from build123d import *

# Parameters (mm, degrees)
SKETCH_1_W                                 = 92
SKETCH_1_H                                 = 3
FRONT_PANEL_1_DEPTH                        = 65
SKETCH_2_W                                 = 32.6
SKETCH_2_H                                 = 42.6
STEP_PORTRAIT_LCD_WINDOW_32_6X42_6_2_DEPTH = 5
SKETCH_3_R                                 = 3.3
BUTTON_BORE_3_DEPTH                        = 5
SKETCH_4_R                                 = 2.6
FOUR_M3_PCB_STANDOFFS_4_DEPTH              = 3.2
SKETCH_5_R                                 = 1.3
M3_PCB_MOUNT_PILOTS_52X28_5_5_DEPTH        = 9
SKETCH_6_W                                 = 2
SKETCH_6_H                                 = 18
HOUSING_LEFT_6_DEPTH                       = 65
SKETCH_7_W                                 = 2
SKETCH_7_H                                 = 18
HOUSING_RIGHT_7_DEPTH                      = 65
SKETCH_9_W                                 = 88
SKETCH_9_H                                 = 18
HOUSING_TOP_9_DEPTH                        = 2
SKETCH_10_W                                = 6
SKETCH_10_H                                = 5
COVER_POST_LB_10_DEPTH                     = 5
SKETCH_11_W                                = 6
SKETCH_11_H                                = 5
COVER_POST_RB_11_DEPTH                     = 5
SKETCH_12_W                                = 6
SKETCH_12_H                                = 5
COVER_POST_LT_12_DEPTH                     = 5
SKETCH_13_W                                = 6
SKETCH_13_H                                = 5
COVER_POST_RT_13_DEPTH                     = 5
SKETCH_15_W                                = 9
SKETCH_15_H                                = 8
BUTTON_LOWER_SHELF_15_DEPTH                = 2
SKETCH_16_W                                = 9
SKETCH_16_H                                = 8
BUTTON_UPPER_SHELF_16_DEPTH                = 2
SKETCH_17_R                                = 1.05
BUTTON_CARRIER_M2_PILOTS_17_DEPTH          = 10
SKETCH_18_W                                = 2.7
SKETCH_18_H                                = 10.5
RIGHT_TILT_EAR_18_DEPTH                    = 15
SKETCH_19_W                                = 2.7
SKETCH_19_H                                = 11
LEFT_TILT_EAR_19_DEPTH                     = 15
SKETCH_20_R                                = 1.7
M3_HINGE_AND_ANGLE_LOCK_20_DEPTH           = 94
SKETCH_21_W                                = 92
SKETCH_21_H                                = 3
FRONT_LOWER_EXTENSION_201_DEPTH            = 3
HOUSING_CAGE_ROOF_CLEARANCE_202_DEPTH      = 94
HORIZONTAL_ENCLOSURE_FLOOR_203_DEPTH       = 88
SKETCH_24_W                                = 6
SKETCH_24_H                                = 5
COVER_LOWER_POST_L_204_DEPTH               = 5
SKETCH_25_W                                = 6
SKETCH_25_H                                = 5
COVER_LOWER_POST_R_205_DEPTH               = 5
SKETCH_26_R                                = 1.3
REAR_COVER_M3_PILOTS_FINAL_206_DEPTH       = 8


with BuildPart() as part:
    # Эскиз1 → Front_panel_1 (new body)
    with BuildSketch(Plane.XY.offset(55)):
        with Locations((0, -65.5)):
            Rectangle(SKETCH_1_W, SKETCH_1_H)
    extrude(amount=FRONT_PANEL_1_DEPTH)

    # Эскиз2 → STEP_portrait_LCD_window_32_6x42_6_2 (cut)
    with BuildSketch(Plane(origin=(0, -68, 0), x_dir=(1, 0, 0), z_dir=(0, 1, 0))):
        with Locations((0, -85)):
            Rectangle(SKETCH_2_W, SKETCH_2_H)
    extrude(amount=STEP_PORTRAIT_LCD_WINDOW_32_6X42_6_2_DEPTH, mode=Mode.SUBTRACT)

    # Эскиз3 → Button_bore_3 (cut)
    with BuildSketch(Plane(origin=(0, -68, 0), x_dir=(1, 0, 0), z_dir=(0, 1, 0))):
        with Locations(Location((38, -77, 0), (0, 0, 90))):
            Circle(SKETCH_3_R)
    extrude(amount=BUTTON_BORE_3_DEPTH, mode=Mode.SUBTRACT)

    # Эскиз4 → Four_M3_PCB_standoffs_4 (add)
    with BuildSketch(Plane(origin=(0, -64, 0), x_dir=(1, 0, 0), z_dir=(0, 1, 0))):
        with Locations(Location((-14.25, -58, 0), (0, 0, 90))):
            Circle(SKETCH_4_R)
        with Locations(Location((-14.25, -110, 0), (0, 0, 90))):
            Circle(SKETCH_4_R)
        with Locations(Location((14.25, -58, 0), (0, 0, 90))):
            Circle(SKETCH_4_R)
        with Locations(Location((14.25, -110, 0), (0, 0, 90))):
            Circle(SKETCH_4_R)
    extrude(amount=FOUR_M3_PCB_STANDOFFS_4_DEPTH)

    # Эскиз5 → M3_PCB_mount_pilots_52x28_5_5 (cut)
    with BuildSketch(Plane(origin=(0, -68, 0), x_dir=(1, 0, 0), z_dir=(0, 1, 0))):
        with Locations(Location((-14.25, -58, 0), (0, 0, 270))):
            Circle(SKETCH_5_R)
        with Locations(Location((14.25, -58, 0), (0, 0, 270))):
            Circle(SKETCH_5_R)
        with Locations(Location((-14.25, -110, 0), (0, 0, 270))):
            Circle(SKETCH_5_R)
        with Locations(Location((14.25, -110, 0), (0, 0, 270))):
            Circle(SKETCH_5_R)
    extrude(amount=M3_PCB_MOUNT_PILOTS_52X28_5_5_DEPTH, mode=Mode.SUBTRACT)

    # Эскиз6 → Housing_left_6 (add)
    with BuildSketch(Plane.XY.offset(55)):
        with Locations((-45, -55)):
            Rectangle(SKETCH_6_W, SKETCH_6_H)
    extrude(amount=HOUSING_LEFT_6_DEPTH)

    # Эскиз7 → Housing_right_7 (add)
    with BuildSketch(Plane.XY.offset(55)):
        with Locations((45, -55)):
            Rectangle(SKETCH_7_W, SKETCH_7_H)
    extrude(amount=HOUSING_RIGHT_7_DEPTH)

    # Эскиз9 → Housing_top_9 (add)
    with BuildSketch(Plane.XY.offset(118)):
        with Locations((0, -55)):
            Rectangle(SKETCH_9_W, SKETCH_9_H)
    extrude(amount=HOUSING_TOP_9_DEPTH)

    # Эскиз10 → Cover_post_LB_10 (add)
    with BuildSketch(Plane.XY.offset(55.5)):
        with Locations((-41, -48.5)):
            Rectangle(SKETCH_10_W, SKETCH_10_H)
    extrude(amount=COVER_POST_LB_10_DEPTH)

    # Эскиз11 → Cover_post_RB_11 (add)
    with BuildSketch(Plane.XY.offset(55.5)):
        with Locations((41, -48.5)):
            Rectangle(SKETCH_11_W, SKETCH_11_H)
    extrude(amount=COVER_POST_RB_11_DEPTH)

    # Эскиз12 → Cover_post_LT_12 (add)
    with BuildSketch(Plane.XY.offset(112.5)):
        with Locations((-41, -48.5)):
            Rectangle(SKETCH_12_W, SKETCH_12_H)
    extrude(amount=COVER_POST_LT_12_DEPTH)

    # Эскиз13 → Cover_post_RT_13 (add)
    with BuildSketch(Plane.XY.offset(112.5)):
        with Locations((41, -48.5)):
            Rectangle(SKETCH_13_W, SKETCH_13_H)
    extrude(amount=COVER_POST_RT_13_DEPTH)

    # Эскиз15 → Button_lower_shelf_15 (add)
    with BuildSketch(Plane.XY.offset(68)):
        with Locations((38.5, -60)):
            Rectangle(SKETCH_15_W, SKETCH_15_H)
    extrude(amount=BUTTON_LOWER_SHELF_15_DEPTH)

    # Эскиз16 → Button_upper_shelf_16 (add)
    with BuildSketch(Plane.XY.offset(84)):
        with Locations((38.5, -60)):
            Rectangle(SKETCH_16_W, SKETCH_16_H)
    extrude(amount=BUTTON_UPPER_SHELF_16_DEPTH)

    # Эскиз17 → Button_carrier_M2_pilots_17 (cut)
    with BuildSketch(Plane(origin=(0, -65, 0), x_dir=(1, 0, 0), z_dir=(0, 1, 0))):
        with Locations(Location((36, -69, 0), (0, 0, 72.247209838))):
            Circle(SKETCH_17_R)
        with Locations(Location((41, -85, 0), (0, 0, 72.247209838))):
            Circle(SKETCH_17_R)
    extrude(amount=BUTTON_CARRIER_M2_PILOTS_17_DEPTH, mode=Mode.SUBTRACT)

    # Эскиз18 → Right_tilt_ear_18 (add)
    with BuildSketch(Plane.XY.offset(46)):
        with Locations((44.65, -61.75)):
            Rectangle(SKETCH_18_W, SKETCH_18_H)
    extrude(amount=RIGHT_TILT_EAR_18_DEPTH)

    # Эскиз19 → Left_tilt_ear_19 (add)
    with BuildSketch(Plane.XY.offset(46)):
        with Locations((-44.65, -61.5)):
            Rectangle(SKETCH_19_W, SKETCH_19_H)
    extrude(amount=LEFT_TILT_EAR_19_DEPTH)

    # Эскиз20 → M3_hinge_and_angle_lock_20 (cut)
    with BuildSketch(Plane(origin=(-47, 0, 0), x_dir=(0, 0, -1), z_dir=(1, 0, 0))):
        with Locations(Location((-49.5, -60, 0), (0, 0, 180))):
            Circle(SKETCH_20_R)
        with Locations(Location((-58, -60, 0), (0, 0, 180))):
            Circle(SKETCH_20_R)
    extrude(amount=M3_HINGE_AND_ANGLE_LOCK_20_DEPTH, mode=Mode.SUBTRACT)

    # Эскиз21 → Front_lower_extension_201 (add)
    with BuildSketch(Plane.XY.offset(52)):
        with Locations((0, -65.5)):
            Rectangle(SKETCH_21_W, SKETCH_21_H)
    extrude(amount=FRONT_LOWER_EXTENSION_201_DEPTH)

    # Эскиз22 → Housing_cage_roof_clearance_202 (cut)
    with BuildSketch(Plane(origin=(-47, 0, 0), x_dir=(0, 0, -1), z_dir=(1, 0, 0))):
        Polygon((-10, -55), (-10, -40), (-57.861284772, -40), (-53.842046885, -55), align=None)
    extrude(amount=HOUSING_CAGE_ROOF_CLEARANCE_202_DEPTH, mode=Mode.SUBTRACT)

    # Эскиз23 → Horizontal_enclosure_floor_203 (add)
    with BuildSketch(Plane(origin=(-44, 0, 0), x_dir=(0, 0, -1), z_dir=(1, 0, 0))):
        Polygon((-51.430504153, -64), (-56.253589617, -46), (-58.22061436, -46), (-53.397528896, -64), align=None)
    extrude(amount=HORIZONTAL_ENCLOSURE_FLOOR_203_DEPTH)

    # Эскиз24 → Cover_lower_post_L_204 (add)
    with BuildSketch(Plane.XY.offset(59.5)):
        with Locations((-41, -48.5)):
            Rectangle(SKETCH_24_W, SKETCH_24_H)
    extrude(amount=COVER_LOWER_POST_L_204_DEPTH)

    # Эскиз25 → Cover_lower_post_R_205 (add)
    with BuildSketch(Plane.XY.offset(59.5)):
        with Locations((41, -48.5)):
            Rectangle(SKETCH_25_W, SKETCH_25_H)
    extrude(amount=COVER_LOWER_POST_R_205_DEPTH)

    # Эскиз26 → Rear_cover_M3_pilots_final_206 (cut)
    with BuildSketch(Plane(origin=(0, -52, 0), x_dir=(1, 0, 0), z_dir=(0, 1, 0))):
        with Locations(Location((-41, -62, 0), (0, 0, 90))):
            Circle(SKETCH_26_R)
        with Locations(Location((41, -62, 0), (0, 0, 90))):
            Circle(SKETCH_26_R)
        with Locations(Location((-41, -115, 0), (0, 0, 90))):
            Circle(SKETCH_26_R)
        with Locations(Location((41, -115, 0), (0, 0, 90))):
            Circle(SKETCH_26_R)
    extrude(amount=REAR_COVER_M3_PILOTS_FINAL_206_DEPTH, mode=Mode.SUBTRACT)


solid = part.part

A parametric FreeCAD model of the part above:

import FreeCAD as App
import Part
import Sketcher

V = App.Vector
Q = App.Units.Quantity


def add_polygon(sketch, points):
    """Adds a closed chain of lines whose ends are joined by coincident constraints."""
    first, n = sketch.GeometryCount, len(points)
    for a, b in zip(points, points[1:] + points[:1]):
        sketch.addGeometry(Part.LineSegment(App.Vector(*a, 0), App.Vector(*b, 0)), False)
    for i in range(n):
        sketch.addConstraint(Sketcher.Constraint("Coincident", first + i, 2, first + (i + 1) % n, 1))

doc = App.newDocument("Part")
params = doc.addObject("Spreadsheet::Sheet", "Params")
for row, (alias, value) in enumerate([
    ("sketch1_width", "92 mm"),
    ("sketch1_height", "3 mm"),
    ("pad1_length", "65 mm"),
    ("sketch2_width", "32.6 mm"),
    ("sketch2_height", "42.6 mm"),
    ("pocket1_length", "5 mm"),
    ("sketch3_diameter", "6.6 mm"),
    ("pocket2_length", "5 mm"),
    ("sketch4_diameter", "5.2 mm"),
    ("pad2_length", "3.2 mm"),
    ("sketch5_diameter", "2.6 mm"),
    ("pocket3_length", "9 mm"),
    ("sketch6_width", "2 mm"),
    ("sketch6_height", "18 mm"),
    ("pad3_length", "65 mm"),
    ("sketch7_width", "2 mm"),
    ("sketch7_height", "18 mm"),
    ("pad4_length", "65 mm"),
    ("sketch8_width", "88 mm"),
    ("sketch8_height", "18 mm"),
    ("pad5_length", "2 mm"),
    ("sketch9_width", "6 mm"),
    ("sketch9_height", "5 mm"),
    ("pad6_length", "5 mm"),
    ("sketch10_width", "6 mm"),
    ("sketch10_height", "5 mm"),
    ("pad7_length", "5 mm"),
    ("sketch11_width", "6 mm"),
    ("sketch11_height", "5 mm"),
    ("pad8_length", "5 mm"),
    ("sketch12_width", "6 mm"),
    ("sketch12_height", "5 mm"),
    ("pad9_length", "5 mm"),
    ("sketch13_width", "9 mm"),
    ("sketch13_height", "8 mm"),
    ("pad10_length", "2 mm"),
    ("sketch14_width", "9 mm"),
    ("sketch14_height", "8 mm"),
    ("pad11_length", "2 mm"),
    ("sketch15_diameter", "2.1 mm"),
    ("pocket4_length", "10 mm"),
    ("sketch16_width", "2.7 mm"),
    ("sketch16_height", "10.5 mm"),
    ("pad12_length", "15 mm"),
    ("sketch17_height", "11 mm"),
    ("sketch17_width", "2.7 mm"),
    ("pad13_length", "15 mm"),
    ("sketch18_diameter", "3.4 mm"),
    ("pocket5_length", "94 mm"),
    ("sketch19_width", "92 mm"),
    ("sketch19_height", "3 mm"),
    ("pad14_length", "3 mm"),
    ("sketch20_width", "15 mm"),
    ("pocket6_length", "94 mm"),
    ("pad15_length", "88 mm"),
    ("sketch22_width", "6 mm"),
    ("sketch22_height", "5 mm"),
    ("pad16_length", "5 mm"),
    ("sketch23_width", "6 mm"),
    ("sketch23_height", "5 mm"),
    ("pad17_length", "5 mm"),
    ("sketch24_diameter", "2.6 mm"),
    ("pocket7_length", "8 mm"),
], start=1):
    params.set(f"A{row}", alias)
    params.set(f"B{row}", "=" + value)
    params.setAlias(f"B{row}", alias)

body = doc.addObject("PartDesign::Body", "Body")

# Sketch on XY plane
sketch1 = body.newObject("Sketcher::SketchObject", "Sketch")
sketch1.AttachmentSupport = (doc.getObject("XY_Plane"), [""])
sketch1.MapMode = "FlatFace"
sketch1.AttachmentOffset = App.Placement(V(0, 0, 55), App.Rotation())
add_polygon(sketch1, [(-46, -64), (-46, -67), (46, -67), (46, -64)])  # lines 0-3
sketch1.addConstraint(Sketcher.Constraint("Vertical", 0))
sketch1.addConstraint(Sketcher.Constraint("Horizontal", 1))
sketch1.addConstraint(Sketcher.Constraint("Vertical", 2))
sketch1.addConstraint(Sketcher.Constraint("Horizontal", 3))
sketch1.addConstraint(Sketcher.Constraint("DistanceX", 1, 1, 1, 2, Q("92 mm")))
sketch1.addConstraint(Sketcher.Constraint("DistanceY", 0, 2, 0, 1, Q("3 mm")))
sketch1.addConstraint(Sketcher.Constraint("DistanceX", 0, 2, -1, 1, Q("46 mm")))
sketch1.addConstraint(Sketcher.Constraint("DistanceY", 0, 2, -1, 1, Q("67 mm")))
sketch1.setExpression("Constraints[8]", "Params.sketch1_width")
sketch1.setExpression("Constraints[9]", "Params.sketch1_height")
pad1 = body.newObject("PartDesign::Pad", "Pad")
pad1.Profile = sketch1
pad1.setExpression("Length", "Params.pad1_length")

# Sketch on XZ plane
sketch2 = body.newObject("Sketcher::SketchObject", "Sketch001")
sketch2.AttachmentSupport = (doc.getObject("XZ_Plane"), [""])
sketch2.MapMode = "FlatFace"
sketch2.AttachmentOffset = App.Placement(V(0, 0, 68), App.Rotation())
add_polygon(sketch2, [(-16, 64), (-16, 106), (16, 106), (16, 64)])  # lines 0-3
sketch2.addConstraint(Sketcher.Constraint("Vertical", 0))
sketch2.addConstraint(Sketcher.Constraint("Horizontal", 1))
sketch2.addConstraint(Sketcher.Constraint("Vertical", 2))
sketch2.addConstraint(Sketcher.Constraint("Horizontal", 3))
sketch2.addConstraint(Sketcher.Constraint("DistanceX", 1, 1, 1, 2, Q("32.6 mm")))
sketch2.addConstraint(Sketcher.Constraint("DistanceY", 0, 1, 0, 2, Q("42.6 mm")))
sketch2.addConstraint(Sketcher.Constraint("DistanceX", 0, 2, -1, 1, Q("16.3 mm")))
sketch2.addConstraint(Sketcher.Constraint("DistanceY", -1, 1, 0, 2, Q("106.3 mm")))
sketch2.setExpression("Constraints[8]", "Params.sketch2_width")
sketch2.setExpression("Constraints[9]", "Params.sketch2_height")
pocket1 = body.newObject("PartDesign::Pocket", "Pocket")
pocket1.Profile = sketch2
pocket1.setExpression("Length", "Params.pocket1_length")

# Sketch on XZ plane
sketch3 = body.newObject("Sketcher::SketchObject", "Sketch002")
sketch3.AttachmentSupport = (doc.getObject("XZ_Plane"), [""])
sketch3.MapMode = "FlatFace"
sketch3.AttachmentOffset = App.Placement(V(0, 0, 68), App.Rotation())
sketch3.addGeometry(Part.Circle(V(38, 77, 0), V(0, 0, 1), 3.3), False)
sketch3.addConstraint(Sketcher.Constraint("Diameter", 0, Q("6.6 mm")))
sketch3.addConstraint(Sketcher.Constraint("DistanceX", -1, 1, 0, 3, Q("38 mm")))
sketch3.addConstraint(Sketcher.Constraint("DistanceY", -1, 1, 0, 3, Q("77 mm")))
sketch3.setExpression("Constraints[0]", "Params.sketch3_diameter")
pocket2 = body.newObject("PartDesign::Pocket", "Pocket001")
pocket2.Profile = sketch3
pocket2.setExpression("Length", "Params.pocket2_length")

# Sketch on XZ plane
sketch4 = body.newObject("Sketcher::SketchObject", "Sketch003")
sketch4.AttachmentSupport = (doc.getObject("XZ_Plane"), [""])
sketch4.MapMode = "FlatFace"
sketch4.AttachmentOffset = App.Placement(V(0, 0, 64), App.Rotation())
sketch4.addGeometry(Part.Circle(V(-14.2, 58, 0), V(0, 0, 1), 2.6), False)
sketch4.addGeometry(Part.Circle(V(-14.2, 110, 0), V(0, 0, 1), 2.6), False)
sketch4.addGeometry(Part.Circle(V(14.2, 58, 0), V(0, 0, 1), 2.6), False)
sketch4.addGeometry(Part.Circle(V(14.2, 110, 0), V(0, 0, 1), 2.6), False)
sketch4.addConstraint(Sketcher.Constraint("Equal", 0, 1))
sketch4.addConstraint(Sketcher.Constraint("Equal", 1, 2))
sketch4.addConstraint(Sketcher.Constraint("Equal", 2, 3))
sketch4.addConstraint(Sketcher.Constraint("Symmetric", 0, 3, 2, 3, -2))
sketch4.addConstraint(Sketcher.Constraint("Symmetric", 1, 3, 3, 3, -2))
sketch4.addConstraint(Sketcher.Constraint("Vertical", 0, 3, 1, 3))
sketch4.addConstraint(Sketcher.Constraint("Diameter", 0, Q("5.2 mm")))
sketch4.addConstraint(Sketcher.Constraint("DistanceY", -1, 1, 0, 3, Q("58 mm")))
sketch4.addConstraint(Sketcher.Constraint("DistanceY", -1, 1, 1, 3, Q("110 mm")))
sketch4.addConstraint(Sketcher.Constraint("DistanceX", 0, 3, 2, 3, Q("28.5 mm")))
sketch4.setExpression("Constraints[6]", "Params.sketch4_diameter")
pad2 = body.newObject("PartDesign::Pad", "Pad001")
pad2.Profile = sketch4
pad2.setExpression("Length", "Params.pad2_length")
pad2.Reversed = True

# Sketch on XZ plane
sketch5 = body.newObject("Sketcher::SketchObject", "Sketch004")
sketch5.AttachmentSupport = (doc.getObject("XZ_Plane"), [""])
sketch5.MapMode = "FlatFace"
sketch5.AttachmentOffset = App.Placement(V(0, 0, 68), App.Rotation())
sketch5.addGeometry(Part.Circle(V(-14.2, 58, 0), V(0, 0, 1), 1.3), False)
sketch5.addGeometry(Part.Circle(V(14.2, 58, 0), V(0, 0, 1), 1.3), False)
sketch5.addGeometry(Part.Circle(V(-14.2, 110, 0), V(0, 0, 1), 1.3), False)
sketch5.addGeometry(Part.Circle(V(14.2, 110, 0), V(0, 0, 1), 1.3), False)
sketch5.addConstraint(Sketcher.Constraint("Equal", 0, 1))
sketch5.addConstraint(Sketcher.Constraint("Equal", 1, 2))
sketch5.addConstraint(Sketcher.Constraint("Equal", 2, 3))
sketch5.addConstraint(Sketcher.Constraint("Symmetric", 0, 3, 1, 3, -2))
sketch5.addConstraint(Sketcher.Constraint("Symmetric", 2, 3, 3, 3, -2))
sketch5.addConstraint(Sketcher.Constraint("Vertical", 0, 3, 2, 3))
sketch5.addConstraint(Sketcher.Constraint("Diameter", 0, Q("2.6 mm")))
sketch5.addConstraint(Sketcher.Constraint("DistanceY", -1, 1, 0, 3, Q("58 mm")))
sketch5.addConstraint(Sketcher.Constraint("DistanceY", -1, 1, 2, 3, Q("110 mm")))
sketch5.addConstraint(Sketcher.Constraint("DistanceX", 0, 3, 1, 3, Q("28.5 mm")))
sketch5.setExpression("Constraints[6]", "Params.sketch5_diameter")
pocket3 = body.newObject("PartDesign::Pocket", "Pocket002")
pocket3.Profile = sketch5
pocket3.setExpression("Length", "Params.pocket3_length")

# Sketch on XY plane
sketch6 = body.newObject("Sketcher::SketchObject", "Sketch005")
sketch6.AttachmentSupport = (doc.getObject("XY_Plane"), [""])
sketch6.MapMode = "FlatFace"
sketch6.AttachmentOffset = App.Placement(V(0, 0, 55), App.Rotation())
add_polygon(sketch6, [(-46, -46), (-46, -64), (-44, -64), (-44, -46)])  # lines 0-3
sketch6.addConstraint(Sketcher.Constraint("Vertical", 0))
sketch6.addConstraint(Sketcher.Constraint("Horizontal", 1))
sketch6.addConstraint(Sketcher.Constraint("Vertical", 2))
sketch6.addConstraint(Sketcher.Constraint("Horizontal", 3))
sketch6.addConstraint(Sketcher.Constraint("DistanceX", 1, 1, 1, 2, Q("2 mm")))
sketch6.addConstraint(Sketcher.Constraint("DistanceY", 0, 2, 0, 1, Q("18 mm")))
sketch6.addConstraint(Sketcher.Constraint("DistanceX", 0, 2, -1, 1, Q("46 mm")))
sketch6.addConstraint(Sketcher.Constraint("DistanceY", 0, 2, -1, 1, Q("64 mm")))
sketch6.setExpression("Constraints[8]", "Params.sketch6_width")
sketch6.setExpression("Constraints[9]", "Params.sketch6_height")
pad3 = body.newObject("PartDesign::Pad", "Pad002")
pad3.Profile = sketch6
pad3.setExpression("Length", "Params.pad3_length")

# Sketch on XY plane
sketch7 = body.newObject("Sketcher::SketchObject", "Sketch006")
sketch7.AttachmentSupport = (doc.getObject("XY_Plane"), [""])
sketch7.MapMode = "FlatFace"
sketch7.AttachmentOffset = App.Placement(V(0, 0, 55), App.Rotation())
add_polygon(sketch7, [(44, -46), (44, -64), (46, -64), (46, -46)])  # lines 0-3
sketch7.addConstraint(Sketcher.Constraint("Vertical", 0))
sketch7.addConstraint(Sketcher.Constraint("Horizontal", 1))
sketch7.addConstraint(Sketcher.Constraint("Vertical", 2))
sketch7.addConstraint(Sketcher.Constraint("Horizontal", 3))
sketch7.addConstraint(Sketcher.Constraint("DistanceX", 1, 1, 1, 2, Q("2 mm")))
sketch7.addConstraint(Sketcher.Constraint("DistanceY", 0, 2, 0, 1, Q("18 mm")))
sketch7.addConstraint(Sketcher.Constraint("DistanceX", -1, 1, 0, 2, Q("44 mm")))
sketch7.addConstraint(Sketcher.Constraint("DistanceY", 0, 2, -1, 1, Q("64 mm")))
sketch7.setExpression("Constraints[8]", "Params.sketch7_width")
sketch7.setExpression("Constraints[9]", "Params.sketch7_height")
pad4 = body.newObject("PartDesign::Pad", "Pad003")
pad4.Profile = sketch7
pad4.setExpression("Length", "Params.pad4_length")

# Sketch on XY plane
sketch8 = body.newObject("Sketcher::SketchObject", "Sketch007")
sketch8.AttachmentSupport = (doc.getObject("XY_Plane"), [""])
sketch8.MapMode = "FlatFace"
sketch8.AttachmentOffset = App.Placement(V(0, 0, 118), App.Rotation())
add_polygon(sketch8, [(-44, -46), (-44, -64), (44, -64), (44, -46)])  # lines 0-3
sketch8.addConstraint(Sketcher.Constraint("Vertical", 0))
sketch8.addConstraint(Sketcher.Constraint("Horizontal", 1))
sketch8.addConstraint(Sketcher.Constraint("Vertical", 2))
sketch8.addConstraint(Sketcher.Constraint("Horizontal", 3))
sketch8.addConstraint(Sketcher.Constraint("DistanceX", 1, 1, 1, 2, Q("88 mm")))
sketch8.addConstraint(Sketcher.Constraint("DistanceY", 0, 2, 0, 1, Q("18 mm")))
sketch8.addConstraint(Sketcher.Constraint("DistanceX", 0, 2, -1, 1, Q("44 mm")))
sketch8.addConstraint(Sketcher.Constraint("DistanceY", 0, 2, -1, 1, Q("64 mm")))
sketch8.setExpression("Constraints[8]", "Params.sketch8_width")
sketch8.setExpression("Constraints[9]", "Params.sketch8_height")
pad5 = body.newObject("PartDesign::Pad", "Pad004")
pad5.Profile = sketch8
pad5.setExpression("Length", "Params.pad5_length")

# Sketch on XY plane
sketch9 = body.newObject("Sketcher::SketchObject", "Sketch008")
sketch9.AttachmentSupport = (doc.getObject("XY_Plane"), [""])
sketch9.MapMode = "FlatFace"
sketch9.AttachmentOffset = App.Placement(V(0, 0, 55.5), App.Rotation())
add_polygon(sketch9, [(-44, -46), (-44, -51), (-38, -51), (-38, -46)])  # lines 0-3
sketch9.addConstraint(Sketcher.Constraint("Vertical", 0))
sketch9.addConstraint(Sketcher.Constraint("Horizontal", 1))
sketch9.addConstraint(Sketcher.Constraint("Vertical", 2))
sketch9.addConstraint(Sketcher.Constraint("Horizontal", 3))
sketch9.addConstraint(Sketcher.Constraint("DistanceX", 1, 1, 1, 2, Q("6 mm")))
sketch9.addConstraint(Sketcher.Constraint("DistanceY", 0, 2, 0, 1, Q("5 mm")))
sketch9.addConstraint(Sketcher.Constraint("DistanceX", 0, 2, -1, 1, Q("44 mm")))
sketch9.addConstraint(Sketcher.Constraint("DistanceY", 0, 2, -1, 1, Q("51 mm")))
sketch9.setExpression("Constraints[8]", "Params.sketch9_width")
sketch9.setExpression("Constraints[9]", "Params.sketch9_height")
pad6 = body.newObject("PartDesign::Pad", "Pad005")
pad6.Profile = sketch9
pad6.setExpression("Length", "Params.pad6_length")

# Sketch on XY plane
sketch10 = body.newObject("Sketcher::SketchObject", "Sketch009")
sketch10.AttachmentSupport = (doc.getObject("XY_Plane"), [""])
sketch10.MapMode = "FlatFace"
sketch10.AttachmentOffset = App.Placement(V(0, 0, 55.5), App.Rotation())
add_polygon(sketch10, [(38, -46), (38, -51), (44, -51), (44, -46)])  # lines 0-3
sketch10.addConstraint(Sketcher.Constraint("Vertical", 0))
sketch10.addConstraint(Sketcher.Constraint("Horizontal", 1))
sketch10.addConstraint(Sketcher.Constraint("Vertical", 2))
sketch10.addConstraint(Sketcher.Constraint("Horizontal", 3))
sketch10.addConstraint(Sketcher.Constraint("DistanceX", 1, 1, 1, 2, Q("6 mm")))
sketch10.addConstraint(Sketcher.Constraint("DistanceY", 0, 2, 0, 1, Q("5 mm")))
sketch10.addConstraint(Sketcher.Constraint("DistanceX", -1, 1, 0, 2, Q("38 mm")))
sketch10.addConstraint(Sketcher.Constraint("DistanceY", 0, 2, -1, 1, Q("51 mm")))
sketch10.setExpression("Constraints[8]", "Params.sketch10_width")
sketch10.setExpression("Constraints[9]", "Params.sketch10_height")
pad7 = body.newObject("PartDesign::Pad", "Pad006")
pad7.Profile = sketch10
pad7.setExpression("Length", "Params.pad7_length")

# Sketch on XY plane
sketch11 = body.newObject("Sketcher::SketchObject", "Sketch010")
sketch11.AttachmentSupport = (doc.getObject("XY_Plane"), [""])
sketch11.MapMode = "FlatFace"
sketch11.AttachmentOffset = App.Placement(V(0, 0, 112.5), App.Rotation())
add_polygon(sketch11, [(-44, -46), (-44, -51), (-38, -51), (-38, -46)])  # lines 0-3
sketch11.addConstraint(Sketcher.Constraint("Vertical", 0))
sketch11.addConstraint(Sketcher.Constraint("Horizontal", 1))
sketch11.addConstraint(Sketcher.Constraint("Vertical", 2))
sketch11.addConstraint(Sketcher.Constraint("Horizontal", 3))
sketch11.addConstraint(Sketcher.Constraint("DistanceX", 1, 1, 1, 2, Q("6 mm")))
sketch11.addConstraint(Sketcher.Constraint("DistanceY", 0, 2, 0, 1, Q("5 mm")))
sketch11.addConstraint(Sketcher.Constraint("DistanceX", 0, 2, -1, 1, Q("44 mm")))
sketch11.addConstraint(Sketcher.Constraint("DistanceY", 0, 2, -1, 1, Q("51 mm")))
sketch11.setExpression("Constraints[8]", "Params.sketch11_width")
sketch11.setExpression("Constraints[9]", "Params.sketch11_height")
pad8 = body.newObject("PartDesign::Pad", "Pad007")
pad8.Profile = sketch11
pad8.setExpression("Length", "Params.pad8_length")

# Sketch on XY plane
sketch12 = body.newObject("Sketcher::SketchObject", "Sketch011")
sketch12.AttachmentSupport = (doc.getObject("XY_Plane"), [""])
sketch12.MapMode = "FlatFace"
sketch12.AttachmentOffset = App.Placement(V(0, 0, 112.5), App.Rotation())
add_polygon(sketch12, [(38, -46), (38, -51), (44, -51), (44, -46)])  # lines 0-3
sketch12.addConstraint(Sketcher.Constraint("Vertical", 0))
sketch12.addConstraint(Sketcher.Constraint("Horizontal", 1))
sketch12.addConstraint(Sketcher.Constraint("Vertical", 2))
sketch12.addConstraint(Sketcher.Constraint("Horizontal", 3))
sketch12.addConstraint(Sketcher.Constraint("DistanceX", 1, 1, 1, 2, Q("6 mm")))
sketch12.addConstraint(Sketcher.Constraint("DistanceY", 0, 2, 0, 1, Q("5 mm")))
sketch12.addConstraint(Sketcher.Constraint("DistanceX", -1, 1, 0, 2, Q("38 mm")))
sketch12.addConstraint(Sketcher.Constraint("DistanceY", 0, 2, -1, 1, Q("51 mm")))
sketch12.setExpression("Constraints[8]", "Params.sketch12_width")
sketch12.setExpression("Constraints[9]", "Params.sketch12_height")
pad9 = body.newObject("PartDesign::Pad", "Pad008")
pad9.Profile = sketch12
pad9.setExpression("Length", "Params.pad9_length")

# Sketch on XY plane
sketch13 = body.newObject("Sketcher::SketchObject", "Sketch012")
sketch13.AttachmentSupport = (doc.getObject("XY_Plane"), [""])
sketch13.MapMode = "FlatFace"
sketch13.AttachmentOffset = App.Placement(V(0, 0, 68), App.Rotation())
add_polygon(sketch13, [(34, -56), (34, -64), (43, -64), (43, -56)])  # lines 0-3
sketch13.addConstraint(Sketcher.Constraint("Vertical", 0))
sketch13.addConstraint(Sketcher.Constraint("Horizontal", 1))
sketch13.addConstraint(Sketcher.Constraint("Vertical", 2))
sketch13.addConstraint(Sketcher.Constraint("Horizontal", 3))
sketch13.addConstraint(Sketcher.Constraint("DistanceX", 1, 1, 1, 2, Q("9 mm")))
sketch13.addConstraint(Sketcher.Constraint("DistanceY", 0, 2, 0, 1, Q("8 mm")))
sketch13.addConstraint(Sketcher.Constraint("DistanceX", -1, 1, 0, 2, Q("34 mm")))
sketch13.addConstraint(Sketcher.Constraint("DistanceY", 0, 2, -1, 1, Q("64 mm")))
sketch13.setExpression("Constraints[8]", "Params.sketch13_width")
sketch13.setExpression("Constraints[9]", "Params.sketch13_height")
pad10 = body.newObject("PartDesign::Pad", "Pad009")
pad10.Profile = sketch13
pad10.setExpression("Length", "Params.pad10_length")

# Sketch on XY plane
sketch14 = body.newObject("Sketcher::SketchObject", "Sketch013")
sketch14.AttachmentSupport = (doc.getObject("XY_Plane"), [""])
sketch14.MapMode = "FlatFace"
sketch14.AttachmentOffset = App.Placement(V(0, 0, 84), App.Rotation())
add_polygon(sketch14, [(34, -56), (34, -64), (43, -64), (43, -56)])  # lines 0-3
sketch14.addConstraint(Sketcher.Constraint("Vertical", 0))
sketch14.addConstraint(Sketcher.Constraint("Horizontal", 1))
sketch14.addConstraint(Sketcher.Constraint("Vertical", 2))
sketch14.addConstraint(Sketcher.Constraint("Horizontal", 3))
sketch14.addConstraint(Sketcher.Constraint("DistanceX", 1, 1, 1, 2, Q("9 mm")))
sketch14.addConstraint(Sketcher.Constraint("DistanceY", 0, 2, 0, 1, Q("8 mm")))
sketch14.addConstraint(Sketcher.Constraint("DistanceX", -1, 1, 0, 2, Q("34 mm")))
sketch14.addConstraint(Sketcher.Constraint("DistanceY", 0, 2, -1, 1, Q("64 mm")))
sketch14.setExpression("Constraints[8]", "Params.sketch14_width")
sketch14.setExpression("Constraints[9]", "Params.sketch14_height")
pad11 = body.newObject("PartDesign::Pad", "Pad010")
pad11.Profile = sketch14
pad11.setExpression("Length", "Params.pad11_length")

# Sketch on XZ plane
sketch15 = body.newObject("Sketcher::SketchObject", "Sketch014")
sketch15.AttachmentSupport = (doc.getObject("XZ_Plane"), [""])
sketch15.MapMode = "FlatFace"
sketch15.AttachmentOffset = App.Placement(V(0, 0, 65), App.Rotation())
sketch15.addGeometry(Part.Circle(V(36, 69, 0), V(0, 0, 1), 1.1), False)
sketch15.addGeometry(Part.Circle(V(41, 85, 0), V(0, 0, 1), 1.1), False)
sketch15.addConstraint(Sketcher.Constraint("Equal", 0, 1))
sketch15.addConstraint(Sketcher.Constraint("Diameter", 0, Q("2.1 mm")))
sketch15.addConstraint(Sketcher.Constraint("DistanceX", -1, 1, 0, 3, Q("36 mm")))
sketch15.addConstraint(Sketcher.Constraint("DistanceY", -1, 1, 0, 3, Q("69 mm")))
sketch15.addConstraint(Sketcher.Constraint("DistanceX", -1, 1, 1, 3, Q("41 mm")))
sketch15.addConstraint(Sketcher.Constraint("DistanceY", -1, 1, 1, 3, Q("85 mm")))
sketch15.setExpression("Constraints[1]", "Params.sketch15_diameter")
pocket4 = body.newObject("PartDesign::Pocket", "Pocket003")
pocket4.Profile = sketch15
pocket4.setExpression("Length", "Params.pocket4_length")

# Sketch on XY plane
sketch16 = body.newObject("Sketcher::SketchObject", "Sketch015")
sketch16.AttachmentSupport = (doc.getObject("XY_Plane"), [""])
sketch16.MapMode = "FlatFace"
sketch16.AttachmentOffset = App.Placement(V(0, 0, 46), App.Rotation())
add_polygon(sketch16, [(43.3, -56.5), (43.3, -67), (46, -67), (46, -56.5)])  # lines 0-3
sketch16.addConstraint(Sketcher.Constraint("Vertical", 0))
sketch16.addConstraint(Sketcher.Constraint("Horizontal", 1))
sketch16.addConstraint(Sketcher.Constraint("Vertical", 2))
sketch16.addConstraint(Sketcher.Constraint("Horizontal", 3))
sketch16.addConstraint(Sketcher.Constraint("DistanceX", 1, 1, 1, 2, Q("2.7 mm")))
sketch16.addConstraint(Sketcher.Constraint("DistanceY", 0, 2, 0, 1, Q("10.5 mm")))
sketch16.addConstraint(Sketcher.Constraint("DistanceY", 0, 2, -1, 1, Q("67 mm")))
sketch16.addConstraint(Sketcher.Constraint("DistanceX", -1, 1, 1, 2, Q("46 mm")))
sketch16.setExpression("Constraints[8]", "Params.sketch16_width")
sketch16.setExpression("Constraints[9]", "Params.sketch16_height")
pad12 = body.newObject("PartDesign::Pad", "Pad011")
pad12.Profile = sketch16
pad12.setExpression("Length", "Params.pad12_length")

# Sketch on XY plane
sketch17 = body.newObject("Sketcher::SketchObject", "Sketch016")
sketch17.AttachmentSupport = (doc.getObject("XY_Plane"), [""])
sketch17.MapMode = "FlatFace"
sketch17.AttachmentOffset = App.Placement(V(0, 0, 46), App.Rotation())
add_polygon(sketch17, [(-46, -56), (-46, -67), (-43.3, -67), (-43.3, -56)])  # lines 0-3
sketch17.addConstraint(Sketcher.Constraint("Vertical", 0))
sketch17.addConstraint(Sketcher.Constraint("Horizontal", 1))
sketch17.addConstraint(Sketcher.Constraint("Vertical", 2))
sketch17.addConstraint(Sketcher.Constraint("Horizontal", 3))
sketch17.addConstraint(Sketcher.Constraint("DistanceY", 0, 2, 0, 1, Q("11 mm")))
sketch17.addConstraint(Sketcher.Constraint("DistanceX", 1, 1, 1, 2, Q("2.7 mm")))
sketch17.addConstraint(Sketcher.Constraint("DistanceX", 0, 2, -1, 1, Q("46 mm")))
sketch17.addConstraint(Sketcher.Constraint("DistanceY", 0, 2, -1, 1, Q("67 mm")))
sketch17.setExpression("Constraints[8]", "Params.sketch17_height")
sketch17.setExpression("Constraints[9]", "Params.sketch17_width")
pad13 = body.newObject("PartDesign::Pad", "Pad012")
pad13.Profile = sketch17
pad13.setExpression("Length", "Params.pad13_length")

# Sketch on YZ plane
sketch18 = body.newObject("Sketcher::SketchObject", "Sketch017")
sketch18.AttachmentSupport = (doc.getObject("YZ_Plane"), [""])
sketch18.MapMode = "FlatFace"
sketch18.AttachmentOffset = App.Placement(V(0, 0, -47), App.Rotation())
sketch18.addGeometry(Part.Circle(V(-60, 49.5, 0), V(0, 0, 1), 1.7), False)
sketch18.addGeometry(Part.Circle(V(-60, 58, 0), V(0, 0, 1), 1.7), False)
sketch18.addConstraint(Sketcher.Constraint("Equal", 0, 1))
sketch18.addConstraint(Sketcher.Constraint("Vertical", 0, 3, 1, 3))
sketch18.addConstraint(Sketcher.Constraint("Diameter", 0, Q("3.4 mm")))
sketch18.addConstraint(Sketcher.Constraint("DistanceX", 0, 3, -1, 1, Q("60 mm")))
sketch18.addConstraint(Sketcher.Constraint("DistanceY", -1, 1, 1, 3, Q("58 mm")))
sketch18.addConstraint(Sketcher.Constraint("DistanceY", -1, 1, 0, 3, Q("49.5 mm")))
sketch18.setExpression("Constraints[2]", "Params.sketch18_diameter")
pocket5 = body.newObject("PartDesign::Pocket", "Pocket004")
pocket5.Profile = sketch18
pocket5.setExpression("Length", "Params.pocket5_length")
pocket5.Reversed = True

# Sketch on XY plane
sketch19 = body.newObject("Sketcher::SketchObject", "Sketch018")
sketch19.AttachmentSupport = (doc.getObject("XY_Plane"), [""])
sketch19.MapMode = "FlatFace"
sketch19.AttachmentOffset = App.Placement(V(0, 0, 52), App.Rotation())
add_polygon(sketch19, [(-46, -64), (-46, -67), (46, -67), (46, -64)])  # lines 0-3
sketch19.addConstraint(Sketcher.Constraint("Vertical", 0))
sketch19.addConstraint(Sketcher.Constraint("Horizontal", 1))
sketch19.addConstraint(Sketcher.Constraint("Vertical", 2))
sketch19.addConstraint(Sketcher.Constraint("Horizontal", 3))
sketch19.addConstraint(Sketcher.Constraint("DistanceX", 1, 1, 1, 2, Q("92 mm")))
sketch19.addConstraint(Sketcher.Constraint("DistanceY", 0, 2, 0, 1, Q("3 mm")))
sketch19.addConstraint(Sketcher.Constraint("DistanceX", 0, 2, -1, 1, Q("46 mm")))
sketch19.addConstraint(Sketcher.Constraint("DistanceY", 0, 2, -1, 1, Q("67 mm")))
sketch19.setExpression("Constraints[8]", "Params.sketch19_width")
sketch19.setExpression("Constraints[9]", "Params.sketch19_height")
pad14 = body.newObject("PartDesign::Pad", "Pad013")
pad14.Profile = sketch19
pad14.setExpression("Length", "Params.pad14_length")

# Sketch on YZ plane
sketch20 = body.newObject("Sketcher::SketchObject", "Sketch019")
sketch20.AttachmentSupport = (doc.getObject("YZ_Plane"), [""])
sketch20.MapMode = "FlatFace"
sketch20.AttachmentOffset = App.Placement(V(0, 0, -47), App.Rotation())
add_polygon(sketch20, [(-55, 10), (-40, 10), (-40, 58), (-55, 54)])  # lines 0-3
sketch20.addConstraint(Sketcher.Constraint("Horizontal", 0))
sketch20.addConstraint(Sketcher.Constraint("Vertical", 1))
sketch20.addConstraint(Sketcher.Constraint("Vertical", 3))
sketch20.addConstraint(Sketcher.Constraint("DistanceX", 0, 1, 0, 2, Q("15 mm")))
sketch20.addConstraint(Sketcher.Constraint("Angle", 2, Q("-165 deg")))
sketch20.addConstraint(Sketcher.Constraint("DistanceX", 0, 2, -1, 1, Q("40 mm")))
sketch20.addConstraint(Sketcher.Constraint("DistanceY", -1, 1, 0, 2, Q("10 mm")))
sketch20.addConstraint(Sketcher.Constraint("DistanceY", 1, 1, 1, 2, Q("47.861285 mm")))
sketch20.setExpression("Constraints[7]", "Params.sketch20_width")
pocket6 = body.newObject("PartDesign::Pocket", "Pocket005")
pocket6.Profile = sketch20
pocket6.setExpression("Length", "Params.pocket6_length")
pocket6.Reversed = True

# Sketch on YZ plane
sketch21 = body.newObject("Sketcher::SketchObject", "Sketch020")
sketch21.AttachmentSupport = (doc.getObject("YZ_Plane"), [""])
sketch21.MapMode = "FlatFace"
sketch21.AttachmentOffset = App.Placement(V(0, 0, -44), App.Rotation())
add_polygon(sketch21, [(-64, 51.4), (-46, 56.3), (-46, 58.2), (-64, 53.4)])  # lines 0-3
sketch21.addConstraint(Sketcher.Constraint("Vertical", 1))
sketch21.addConstraint(Sketcher.Constraint("Vertical", 3))
sketch21.addConstraint(Sketcher.Constraint("Parallel", 0, 2))
sketch21.addConstraint(Sketcher.Constraint("Angle", 0, Q("15 deg")))
sketch21.addConstraint(Sketcher.Constraint("DistanceX", 0, 2, -1, 1, Q("46 mm")))
sketch21.addConstraint(Sketcher.Constraint("DistanceX", 2, 2, -1, 1, Q("64 mm")))
sketch21.addConstraint(Sketcher.Constraint("DistanceY", 1, 1, 1, 2, Q("1.967025 mm")))
sketch21.addConstraint(Sketcher.Constraint("DistanceY", -1, 1, 0, 2, Q("56.25359 mm")))
pad15 = body.newObject("PartDesign::Pad", "Pad014")
pad15.Profile = sketch21
pad15.setExpression("Length", "Params.pad15_length")

# Sketch on XY plane
sketch22 = body.newObject("Sketcher::SketchObject", "Sketch021")
sketch22.AttachmentSupport = (doc.getObject("XY_Plane"), [""])
sketch22.MapMode = "FlatFace"
sketch22.AttachmentOffset = App.Placement(V(0, 0, 59.5), App.Rotation())
add_polygon(sketch22, [(-44, -46), (-44, -51), (-38, -51), (-38, -46)])  # lines 0-3
sketch22.addConstraint(Sketcher.Constraint("Vertical", 0))
sketch22.addConstraint(Sketcher.Constraint("Horizontal", 1))
sketch22.addConstraint(Sketcher.Constraint("Vertical", 2))
sketch22.addConstraint(Sketcher.Constraint("Horizontal", 3))
sketch22.addConstraint(Sketcher.Constraint("DistanceX", 1, 1, 1, 2, Q("6 mm")))
sketch22.addConstraint(Sketcher.Constraint("DistanceY", 0, 2, 0, 1, Q("5 mm")))
sketch22.addConstraint(Sketcher.Constraint("DistanceX", 0, 2, -1, 1, Q("44 mm")))
sketch22.addConstraint(Sketcher.Constraint("DistanceY", 0, 2, -1, 1, Q("51 mm")))
sketch22.setExpression("Constraints[8]", "Params.sketch22_width")
sketch22.setExpression("Constraints[9]", "Params.sketch22_height")
pad16 = body.newObject("PartDesign::Pad", "Pad015")
pad16.Profile = sketch22
pad16.setExpression("Length", "Params.pad16_length")

# Sketch on XY plane
sketch23 = body.newObject("Sketcher::SketchObject", "Sketch022")
sketch23.AttachmentSupport = (doc.getObject("XY_Plane"), [""])
sketch23.MapMode = "FlatFace"
sketch23.AttachmentOffset = App.Placement(V(0, 0, 59.5), App.Rotation())
add_polygon(sketch23, [(38, -46), (38, -51), (44, -51), (44, -46)])  # lines 0-3
sketch23.addConstraint(Sketcher.Constraint("Vertical", 0))
sketch23.addConstraint(Sketcher.Constraint("Horizontal", 1))
sketch23.addConstraint(Sketcher.Constraint("Vertical", 2))
sketch23.addConstraint(Sketcher.Constraint("Horizontal", 3))
sketch23.addConstraint(Sketcher.Constraint("DistanceX", 1, 1, 1, 2, Q("6 mm")))
sketch23.addConstraint(Sketcher.Constraint("DistanceY", 0, 2, 0, 1, Q("5 mm")))
sketch23.addConstraint(Sketcher.Constraint("DistanceX", -1, 1, 0, 2, Q("38 mm")))
sketch23.addConstraint(Sketcher.Constraint("DistanceY", 0, 2, -1, 1, Q("51 mm")))
sketch23.setExpression("Constraints[8]", "Params.sketch23_width")
sketch23.setExpression("Constraints[9]", "Params.sketch23_height")
pad17 = body.newObject("PartDesign::Pad", "Pad016")
pad17.Profile = sketch23
pad17.setExpression("Length", "Params.pad17_length")

# Sketch on XZ plane
sketch24 = body.newObject("Sketcher::SketchObject", "Sketch023")
sketch24.AttachmentSupport = (doc.getObject("XZ_Plane"), [""])
sketch24.MapMode = "FlatFace"
sketch24.AttachmentOffset = App.Placement(V(0, 0, 52), App.Rotation())
sketch24.addGeometry(Part.Circle(V(-41, 62, 0), V(0, 0, 1), 1.3), False)
sketch24.addGeometry(Part.Circle(V(41, 62, 0), V(0, 0, 1), 1.3), False)
sketch24.addGeometry(Part.Circle(V(-41, 115, 0), V(0, 0, 1), 1.3), False)
sketch24.addGeometry(Part.Circle(V(41, 115, 0), V(0, 0, 1), 1.3), False)
sketch24.addConstraint(Sketcher.Constraint("Equal", 0, 1))
sketch24.addConstraint(Sketcher.Constraint("Equal", 1, 2))
sketch24.addConstraint(Sketcher.Constraint("Equal", 2, 3))
sketch24.addConstraint(Sketcher.Constraint("Symmetric", 0, 3, 1, 3, -2))
sketch24.addConstraint(Sketcher.Constraint("Symmetric", 2, 3, 3, 3, -2))
sketch24.addConstraint(Sketcher.Constraint("Vertical", 0, 3, 2, 3))
sketch24.addConstraint(Sketcher.Constraint("Diameter", 0, Q("2.6 mm")))
sketch24.addConstraint(Sketcher.Constraint("DistanceX", 0, 3, -1, 1, Q("41 mm")))
sketch24.addConstraint(Sketcher.Constraint("DistanceY", -1, 1, 0, 3, Q("62 mm")))
sketch24.addConstraint(Sketcher.Constraint("DistanceY", -1, 1, 2, 3, Q("115 mm")))
sketch24.setExpression("Constraints[6]", "Params.sketch24_diameter")
pocket7 = body.newObject("PartDesign::Pocket", "Pocket006")
pocket7.Profile = sketch24
pocket7.setExpression("Length", "Params.pocket7_length")

doc.recompute()
